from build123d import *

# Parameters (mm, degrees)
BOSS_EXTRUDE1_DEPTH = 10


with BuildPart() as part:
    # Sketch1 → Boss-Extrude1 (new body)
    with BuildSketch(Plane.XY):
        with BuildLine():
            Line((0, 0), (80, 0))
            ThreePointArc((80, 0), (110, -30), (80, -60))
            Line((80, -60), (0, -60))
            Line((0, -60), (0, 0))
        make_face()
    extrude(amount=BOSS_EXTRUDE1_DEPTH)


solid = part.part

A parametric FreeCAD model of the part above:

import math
import FreeCAD as App
import Part
import Sketcher

V = App.Vector

doc = App.newDocument("Part")
body = doc.addObject("PartDesign::Body", "Body")

# Sketch on XY plane
sketch1 = body.newObject("Sketcher::SketchObject", "Sketch")
sketch1.AttachmentSupport = (doc.getObject("XY_Plane"), [""])
sketch1.MapMode = "FlatFace"
sketch1.addGeometry(Part.LineSegment(V(80, 0, 0), V(0, 0, 0)), False)
sketch1.addGeometry(Part.LineSegment(V(0, 0, 0), V(0, -60, 0)), False)
sketch1.addGeometry(Part.LineSegment(V(0, -60, 0), V(80, -60, 0)), False)
sketch1.addGeometry(Part.ArcOfCircle(Part.Circle(V(80, -30, 0), V(0, 0, 1), 30), math.radians(-90), math.radians(90)), False)
sketch1.addConstraint(Sketcher.Constraint("Coincident", 0, 2, 1, 1))
sketch1.addConstraint(Sketcher.Constraint("Coincident", 1, 2, 2, 1))
sketch1.addConstraint(Sketcher.Constraint("Tangent", 2, 2, 3, 1))
sketch1.addConstraint(Sketcher.Constraint("Tangent", 3, 2, 0, 1))
sketch1.addConstraint(Sketcher.Constraint("Horizontal", 0))
sketch1.addConstraint(Sketcher.Constraint("Vertical", 1))
sketch1.addConstraint(Sketcher.Constraint("Horizontal", 2))
sketch1.addConstraint(Sketcher.Constraint("Coincident", 0, 2, -1, 1))
sketch1.addConstraint(Sketcher.Constraint("Radius", 3, 30.0))
sketch1.addConstraint(Sketcher.Constraint("DistanceX", 0, 2, 0, 1, 80.0))
pad1 = body.newObject("PartDesign::Pad", "Pad")
pad1.Profile = sketch1
pad1.Length = 10

doc.recompute()
